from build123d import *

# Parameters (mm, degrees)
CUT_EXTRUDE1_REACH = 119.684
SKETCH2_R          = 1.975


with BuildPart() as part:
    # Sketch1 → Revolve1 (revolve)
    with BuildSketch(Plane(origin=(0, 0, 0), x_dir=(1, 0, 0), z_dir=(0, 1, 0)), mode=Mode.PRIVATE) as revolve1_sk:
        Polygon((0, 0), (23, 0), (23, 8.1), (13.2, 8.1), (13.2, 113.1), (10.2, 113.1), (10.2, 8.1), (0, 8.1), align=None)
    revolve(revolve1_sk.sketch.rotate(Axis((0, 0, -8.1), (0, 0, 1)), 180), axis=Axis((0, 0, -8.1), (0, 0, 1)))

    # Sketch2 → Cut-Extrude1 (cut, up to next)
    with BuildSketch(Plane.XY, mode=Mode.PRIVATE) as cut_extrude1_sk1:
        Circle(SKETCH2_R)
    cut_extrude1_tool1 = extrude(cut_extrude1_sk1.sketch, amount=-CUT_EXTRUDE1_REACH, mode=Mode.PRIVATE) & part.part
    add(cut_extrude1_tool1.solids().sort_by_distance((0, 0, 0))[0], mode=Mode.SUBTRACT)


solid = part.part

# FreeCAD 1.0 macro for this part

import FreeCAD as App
import Part
import Sketcher
from FreeCAD import Vector
Q = App.Units.Quantity


def add_polygon(sketch, points):
    """Adds a closed chain of lines whose ends are joined by coincident constraints."""
    first, n = sketch.GeometryCount, len(points)
    for a, b in zip(points, points[1:] + points[:1]):
        sketch.addGeometry(Part.LineSegment(App.Vector(*a, 0), App.Vector(*b, 0)), False)
    for i in range(n):
        sketch.addConstraint(Sketcher.Constraint("Coincident", first + i, 2, first + (i + 1) % n, 1))

doc = App.newDocument("Part")
body = doc.addObject("PartDesign::Body", "Body")

sketch1 = doc.addObject("Sketcher::SketchObject", "Sketch")
body.addObject(sketch1)
sketch1.AttachmentSupport = (doc.XZ_Plane, [""])
sketch1.MapMode = "FlatFace"
add_polygon(sketch1, [(0, 0), (23, 0), (23, -8.1), (13.2, -8.1), (13.2, -113.1), (10.2, -113.1), (10.2, -8.1), (0, -8.1)])
sketch1.addConstraint([
    Sketcher.Constraint("Horizontal", 0),
    Sketcher.Constraint("Vertical", 1),
    Sketcher.Constraint("Horizontal", 2),
    Sketcher.Constraint("Vertical", 3),
    Sketcher.Constraint("Horizontal", 4),
    Sketcher.Constraint("Vertical", 5),
    Sketcher.Constraint("Horizontal", 6),
    Sketcher.Constraint("Vertical", 7),
    Sketcher.Constraint("Coincident", 7, 2, -1, 1),
    Sketcher.Constraint("Horizontal", 2, 2, 5, 2),
    Sketcher.Constraint("DistanceX", 0, 1, 0, 2, Q("23 mm")),
    Sketcher.Constraint("DistanceX", 4, 2, 4, 1, Q("3 mm")),
    Sketcher.Constraint("DistanceY", 3, 2, 3, 1, Q("105 mm")),
    Sketcher.Constraint("DistanceX", 2, 2, 2, 1, Q("9.8 mm")),
    Sketcher.Constraint("DistanceY", 1, 2, 1, 1, Q("8.1 mm")),
])
revolution = doc.addObject("PartDesign::Revolution", "Revolution")
body.addObject(revolution)
revolution.Profile = sketch1
revolution.ReferenceAxis = (sketch1, ["V_Axis"])
revolution.Angle = 360

sketch2 = doc.addObject("Sketcher::SketchObject", "Sketch001")
body.addObject(sketch2)
sketch2.AttachmentSupport = (doc.XY_Plane, [""])
sketch2.MapMode = "FlatFace"
sketch2.addGeometry(Part.Circle(Vector(0, 0, 0), Vector(0, 0, 1), 2), False)
sketch2.addConstraint([
    Sketcher.Constraint("Coincident", 0, 3, -1, 1),
    Sketcher.Constraint("Diameter", 0, Q("3.95 mm")),
])
pocket1 = doc.addObject("PartDesign::Pocket", "Pocket")
body.addObject(pocket1)
pocket1.Profile = sketch2
pocket1.Type = "UpToFirst"

doc.recompute()
